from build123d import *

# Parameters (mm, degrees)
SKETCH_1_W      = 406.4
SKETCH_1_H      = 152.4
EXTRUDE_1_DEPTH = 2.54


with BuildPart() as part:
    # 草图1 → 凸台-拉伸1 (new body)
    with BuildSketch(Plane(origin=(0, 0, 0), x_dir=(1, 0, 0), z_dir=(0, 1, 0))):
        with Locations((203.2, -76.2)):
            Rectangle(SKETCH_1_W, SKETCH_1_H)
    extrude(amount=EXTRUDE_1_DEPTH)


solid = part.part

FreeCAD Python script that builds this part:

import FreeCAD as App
import Part
import Sketcher
from FreeCAD import Vector
Q = App.Units.Quantity

doc = App.newDocument("Part")
body = doc.addObject("PartDesign::Body", "Body")

sketch1 = body.newObject("Sketcher::SketchObject", "Sketch")
sketch1.AttachmentSupport = (doc.getObject("XZ_Plane"), [""])
sketch1.MapMode = "FlatFace"
sketch1.addGeometry([
    Part.LineSegment(Vector(0, 0, 0), Vector(0, 152, 0)),
    Part.LineSegment(Vector(0, 152, 0), Vector(406, 152, 0)),
    Part.LineSegment(Vector(406, 152, 0), Vector(406, 0, 0)),
    Part.LineSegment(Vector(406, 0, 0), Vector(0, 0, 0)),
], False)
sketch1.addConstraint([
    Sketcher.Constraint("Coincident", 0, 2, 1, 1),
    Sketcher.Constraint("Coincident", 1, 2, 2, 1),
    Sketcher.Constraint("Coincident", 2, 2, 3, 1),
    Sketcher.Constraint("Coincident", 3, 2, 0, 1),
    Sketcher.Constraint("Vertical", 0),
    Sketcher.Constraint("Horizontal", 1),
    Sketcher.Constraint("Vertical", 2),
    Sketcher.Constraint("Horizontal", 3),
    Sketcher.Constraint("Coincident", 3, 2, -1, 1),
    Sketcher.Constraint("DistanceX", 1, 1, 1, 2, Q("16 in")),
    Sketcher.Constraint("DistanceY", 0, 1, 0, 2, Q("6 in")),
])
pad1 = body.newObject("PartDesign::Pad", "Pad")
pad1.Profile = sketch1
pad1.Length = Q("0.1 in")
pad1.Reversed = True

doc.recompute()
